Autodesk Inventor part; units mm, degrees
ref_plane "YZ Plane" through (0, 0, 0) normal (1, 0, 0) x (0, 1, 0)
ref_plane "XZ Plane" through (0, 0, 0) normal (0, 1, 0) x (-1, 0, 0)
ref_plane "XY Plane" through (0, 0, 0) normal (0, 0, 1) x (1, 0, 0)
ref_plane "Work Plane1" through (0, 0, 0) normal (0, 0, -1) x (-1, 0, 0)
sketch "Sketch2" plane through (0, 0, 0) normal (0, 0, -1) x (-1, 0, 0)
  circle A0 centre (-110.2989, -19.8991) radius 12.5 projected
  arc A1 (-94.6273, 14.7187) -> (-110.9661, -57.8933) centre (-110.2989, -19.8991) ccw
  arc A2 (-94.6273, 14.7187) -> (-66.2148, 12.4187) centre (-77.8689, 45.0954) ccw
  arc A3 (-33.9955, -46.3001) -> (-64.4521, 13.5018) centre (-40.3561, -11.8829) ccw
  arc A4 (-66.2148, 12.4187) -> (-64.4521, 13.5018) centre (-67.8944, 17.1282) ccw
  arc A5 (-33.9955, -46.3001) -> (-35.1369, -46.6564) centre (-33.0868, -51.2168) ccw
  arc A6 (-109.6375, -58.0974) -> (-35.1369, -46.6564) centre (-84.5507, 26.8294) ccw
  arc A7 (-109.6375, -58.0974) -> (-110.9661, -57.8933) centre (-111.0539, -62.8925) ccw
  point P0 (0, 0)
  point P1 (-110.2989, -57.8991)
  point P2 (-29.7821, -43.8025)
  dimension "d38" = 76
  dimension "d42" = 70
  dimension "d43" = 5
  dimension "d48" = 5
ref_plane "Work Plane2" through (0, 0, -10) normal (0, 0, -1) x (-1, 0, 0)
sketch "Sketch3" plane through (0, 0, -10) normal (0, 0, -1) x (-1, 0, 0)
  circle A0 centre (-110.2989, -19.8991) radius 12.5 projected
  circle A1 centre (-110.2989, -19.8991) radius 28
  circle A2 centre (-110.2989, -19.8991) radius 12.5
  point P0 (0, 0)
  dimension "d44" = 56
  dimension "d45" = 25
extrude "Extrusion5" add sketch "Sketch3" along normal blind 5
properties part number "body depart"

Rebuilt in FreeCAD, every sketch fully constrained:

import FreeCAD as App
import Part
import Sketcher

V = App.Vector
Q = App.Units.Quantity

doc = App.newDocument("Part")
body = doc.addObject("PartDesign::Body", "Body")

# Sketch on XY plane
sketch1 = body.newObject("Sketcher::SketchObject", "Sketch")
sketch1.AttachmentSupport = (doc.getObject("XY_Plane"), [""])
sketch1.MapMode = "FlatFace"
sketch1.AttachmentOffset = App.Placement(V(0, 0, -10), App.Rotation())
sketch1.addGeometry([
    Part.Circle(V(110.2989, -19.8991, 0), V(0, 0, 1), 28),
    Part.Circle(V(110.2989, -19.8991, 0), V(0, 0, 1), 12.5),
], False)
sketch1.addConstraint([
    Sketcher.Constraint("Coincident", 1, 3, 0, 3),
    Sketcher.Constraint("Diameter", 0, Q("56 mm")),
    Sketcher.Constraint("Diameter", 1, Q("25 mm")),
    Sketcher.Constraint("DistanceX", -1, 1, 0, 3, Q("110.299 mm")),
    Sketcher.Constraint("DistanceY", 0, 3, -1, 1, Q("19.899 mm")),
])
pad1 = body.newObject("PartDesign::Pad", "Pad")
pad1.Profile = sketch1
pad1.Length = 5
pad1.Reversed = True

doc.recompute()
